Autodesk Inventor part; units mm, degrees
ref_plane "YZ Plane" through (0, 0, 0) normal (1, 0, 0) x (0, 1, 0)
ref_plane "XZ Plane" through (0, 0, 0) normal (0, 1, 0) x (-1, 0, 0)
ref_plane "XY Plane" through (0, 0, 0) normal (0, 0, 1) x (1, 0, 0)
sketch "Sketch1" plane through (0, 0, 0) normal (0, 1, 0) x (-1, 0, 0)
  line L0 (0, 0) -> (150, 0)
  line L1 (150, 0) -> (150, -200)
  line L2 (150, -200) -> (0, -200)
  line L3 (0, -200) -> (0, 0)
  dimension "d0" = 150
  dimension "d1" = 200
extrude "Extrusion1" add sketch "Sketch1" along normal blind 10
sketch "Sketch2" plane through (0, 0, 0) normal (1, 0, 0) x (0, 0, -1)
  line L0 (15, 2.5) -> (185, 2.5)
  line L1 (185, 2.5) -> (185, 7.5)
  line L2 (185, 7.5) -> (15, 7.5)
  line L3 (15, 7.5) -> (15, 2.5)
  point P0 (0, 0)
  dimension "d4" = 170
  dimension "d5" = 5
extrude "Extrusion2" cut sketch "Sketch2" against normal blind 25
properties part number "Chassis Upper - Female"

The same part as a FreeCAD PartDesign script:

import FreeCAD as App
import Part
import Sketcher
Q = App.Units.Quantity

doc = App.newDocument("Part")
body = doc.addObject("PartDesign::Body", "Body")

sketch1 = doc.addObject("Sketcher::SketchObject", "Sketch")
body.addObject(sketch1)
sketch1.AttachmentSupport = (doc.XZ_Plane, [""])
sketch1.MapMode = "FlatFace"
sketch1.addGeometry([
    Part.LineSegment(App.Vector(-150, 0, 0), App.Vector(0, 0, 0)),
    Part.LineSegment(App.Vector(0, 0, 0), App.Vector(0, -200, 0)),
    Part.LineSegment(App.Vector(0, -200, 0), App.Vector(-150, -200, 0)),
    Part.LineSegment(App.Vector(-150, -200, 0), App.Vector(-150, 0, 0)),
], False)
sketch1.addConstraint([
    Sketcher.Constraint("Coincident", 0, 2, 1, 1),
    Sketcher.Constraint("Coincident", 1, 2, 2, 1),
    Sketcher.Constraint("Coincident", 2, 2, 3, 1),
    Sketcher.Constraint("Coincident", 3, 2, 0, 1),
    Sketcher.Constraint("Horizontal", 0),
    Sketcher.Constraint("Vertical", 1),
    Sketcher.Constraint("Horizontal", 2),
    Sketcher.Constraint("Vertical", 3),
    Sketcher.Constraint("Coincident", 0, 2, -1, 1),
    Sketcher.Constraint("DistanceX", 0, 1, 0, 2, Q("150 mm")),
    Sketcher.Constraint("DistanceY", 1, 2, 1, 1, Q("200 mm")),
])
pad1 = doc.addObject("PartDesign::Pad", "Pad")
body.addObject(pad1)
pad1.Profile = sketch1
pad1.Length = 10
pad1.Reversed = True

sketch2 = doc.addObject("Sketcher::SketchObject", "Sketch001")
body.addObject(sketch2)
sketch2.AttachmentSupport = (doc.YZ_Plane, [""])
sketch2.MapMode = "FlatFace"
sketch2.addGeometry([
    Part.LineSegment(App.Vector(8, -15, 0), App.Vector(2, -15, 0)),
    Part.LineSegment(App.Vector(2, -15, 0), App.Vector(2, -185, 0)),
    Part.LineSegment(App.Vector(2, -185, 0), App.Vector(8, -185, 0)),
    Part.LineSegment(App.Vector(8, -185, 0), App.Vector(8, -15, 0)),
], False)
sketch2.addConstraint([
    Sketcher.Constraint("Coincident", 0, 2, 1, 1),
    Sketcher.Constraint("Coincident", 1, 2, 2, 1),
    Sketcher.Constraint("Coincident", 2, 2, 3, 1),
    Sketcher.Constraint("Coincident", 3, 2, 0, 1),
    Sketcher.Constraint("Horizontal", 0),
    Sketcher.Constraint("Vertical", 1),
    Sketcher.Constraint("Horizontal", 2),
    Sketcher.Constraint("Vertical", 3),
    Sketcher.Constraint("DistanceX", 0, 2, 0, 1, Q("5 mm")),
    Sketcher.Constraint("DistanceY", 1, 2, 1, 1, Q("170 mm")),
    Sketcher.Constraint("DistanceY", 0, 2, -1, 1, Q("15 mm")),
    Sketcher.Constraint("DistanceX", -1, 1, 0, 2, Q("2.5 mm")),
])
pocket1 = doc.addObject("PartDesign::Pocket", "Pocket")
body.addObject(pocket1)
pocket1.Profile = sketch2
pocket1.Length = 25

doc.recompute()
